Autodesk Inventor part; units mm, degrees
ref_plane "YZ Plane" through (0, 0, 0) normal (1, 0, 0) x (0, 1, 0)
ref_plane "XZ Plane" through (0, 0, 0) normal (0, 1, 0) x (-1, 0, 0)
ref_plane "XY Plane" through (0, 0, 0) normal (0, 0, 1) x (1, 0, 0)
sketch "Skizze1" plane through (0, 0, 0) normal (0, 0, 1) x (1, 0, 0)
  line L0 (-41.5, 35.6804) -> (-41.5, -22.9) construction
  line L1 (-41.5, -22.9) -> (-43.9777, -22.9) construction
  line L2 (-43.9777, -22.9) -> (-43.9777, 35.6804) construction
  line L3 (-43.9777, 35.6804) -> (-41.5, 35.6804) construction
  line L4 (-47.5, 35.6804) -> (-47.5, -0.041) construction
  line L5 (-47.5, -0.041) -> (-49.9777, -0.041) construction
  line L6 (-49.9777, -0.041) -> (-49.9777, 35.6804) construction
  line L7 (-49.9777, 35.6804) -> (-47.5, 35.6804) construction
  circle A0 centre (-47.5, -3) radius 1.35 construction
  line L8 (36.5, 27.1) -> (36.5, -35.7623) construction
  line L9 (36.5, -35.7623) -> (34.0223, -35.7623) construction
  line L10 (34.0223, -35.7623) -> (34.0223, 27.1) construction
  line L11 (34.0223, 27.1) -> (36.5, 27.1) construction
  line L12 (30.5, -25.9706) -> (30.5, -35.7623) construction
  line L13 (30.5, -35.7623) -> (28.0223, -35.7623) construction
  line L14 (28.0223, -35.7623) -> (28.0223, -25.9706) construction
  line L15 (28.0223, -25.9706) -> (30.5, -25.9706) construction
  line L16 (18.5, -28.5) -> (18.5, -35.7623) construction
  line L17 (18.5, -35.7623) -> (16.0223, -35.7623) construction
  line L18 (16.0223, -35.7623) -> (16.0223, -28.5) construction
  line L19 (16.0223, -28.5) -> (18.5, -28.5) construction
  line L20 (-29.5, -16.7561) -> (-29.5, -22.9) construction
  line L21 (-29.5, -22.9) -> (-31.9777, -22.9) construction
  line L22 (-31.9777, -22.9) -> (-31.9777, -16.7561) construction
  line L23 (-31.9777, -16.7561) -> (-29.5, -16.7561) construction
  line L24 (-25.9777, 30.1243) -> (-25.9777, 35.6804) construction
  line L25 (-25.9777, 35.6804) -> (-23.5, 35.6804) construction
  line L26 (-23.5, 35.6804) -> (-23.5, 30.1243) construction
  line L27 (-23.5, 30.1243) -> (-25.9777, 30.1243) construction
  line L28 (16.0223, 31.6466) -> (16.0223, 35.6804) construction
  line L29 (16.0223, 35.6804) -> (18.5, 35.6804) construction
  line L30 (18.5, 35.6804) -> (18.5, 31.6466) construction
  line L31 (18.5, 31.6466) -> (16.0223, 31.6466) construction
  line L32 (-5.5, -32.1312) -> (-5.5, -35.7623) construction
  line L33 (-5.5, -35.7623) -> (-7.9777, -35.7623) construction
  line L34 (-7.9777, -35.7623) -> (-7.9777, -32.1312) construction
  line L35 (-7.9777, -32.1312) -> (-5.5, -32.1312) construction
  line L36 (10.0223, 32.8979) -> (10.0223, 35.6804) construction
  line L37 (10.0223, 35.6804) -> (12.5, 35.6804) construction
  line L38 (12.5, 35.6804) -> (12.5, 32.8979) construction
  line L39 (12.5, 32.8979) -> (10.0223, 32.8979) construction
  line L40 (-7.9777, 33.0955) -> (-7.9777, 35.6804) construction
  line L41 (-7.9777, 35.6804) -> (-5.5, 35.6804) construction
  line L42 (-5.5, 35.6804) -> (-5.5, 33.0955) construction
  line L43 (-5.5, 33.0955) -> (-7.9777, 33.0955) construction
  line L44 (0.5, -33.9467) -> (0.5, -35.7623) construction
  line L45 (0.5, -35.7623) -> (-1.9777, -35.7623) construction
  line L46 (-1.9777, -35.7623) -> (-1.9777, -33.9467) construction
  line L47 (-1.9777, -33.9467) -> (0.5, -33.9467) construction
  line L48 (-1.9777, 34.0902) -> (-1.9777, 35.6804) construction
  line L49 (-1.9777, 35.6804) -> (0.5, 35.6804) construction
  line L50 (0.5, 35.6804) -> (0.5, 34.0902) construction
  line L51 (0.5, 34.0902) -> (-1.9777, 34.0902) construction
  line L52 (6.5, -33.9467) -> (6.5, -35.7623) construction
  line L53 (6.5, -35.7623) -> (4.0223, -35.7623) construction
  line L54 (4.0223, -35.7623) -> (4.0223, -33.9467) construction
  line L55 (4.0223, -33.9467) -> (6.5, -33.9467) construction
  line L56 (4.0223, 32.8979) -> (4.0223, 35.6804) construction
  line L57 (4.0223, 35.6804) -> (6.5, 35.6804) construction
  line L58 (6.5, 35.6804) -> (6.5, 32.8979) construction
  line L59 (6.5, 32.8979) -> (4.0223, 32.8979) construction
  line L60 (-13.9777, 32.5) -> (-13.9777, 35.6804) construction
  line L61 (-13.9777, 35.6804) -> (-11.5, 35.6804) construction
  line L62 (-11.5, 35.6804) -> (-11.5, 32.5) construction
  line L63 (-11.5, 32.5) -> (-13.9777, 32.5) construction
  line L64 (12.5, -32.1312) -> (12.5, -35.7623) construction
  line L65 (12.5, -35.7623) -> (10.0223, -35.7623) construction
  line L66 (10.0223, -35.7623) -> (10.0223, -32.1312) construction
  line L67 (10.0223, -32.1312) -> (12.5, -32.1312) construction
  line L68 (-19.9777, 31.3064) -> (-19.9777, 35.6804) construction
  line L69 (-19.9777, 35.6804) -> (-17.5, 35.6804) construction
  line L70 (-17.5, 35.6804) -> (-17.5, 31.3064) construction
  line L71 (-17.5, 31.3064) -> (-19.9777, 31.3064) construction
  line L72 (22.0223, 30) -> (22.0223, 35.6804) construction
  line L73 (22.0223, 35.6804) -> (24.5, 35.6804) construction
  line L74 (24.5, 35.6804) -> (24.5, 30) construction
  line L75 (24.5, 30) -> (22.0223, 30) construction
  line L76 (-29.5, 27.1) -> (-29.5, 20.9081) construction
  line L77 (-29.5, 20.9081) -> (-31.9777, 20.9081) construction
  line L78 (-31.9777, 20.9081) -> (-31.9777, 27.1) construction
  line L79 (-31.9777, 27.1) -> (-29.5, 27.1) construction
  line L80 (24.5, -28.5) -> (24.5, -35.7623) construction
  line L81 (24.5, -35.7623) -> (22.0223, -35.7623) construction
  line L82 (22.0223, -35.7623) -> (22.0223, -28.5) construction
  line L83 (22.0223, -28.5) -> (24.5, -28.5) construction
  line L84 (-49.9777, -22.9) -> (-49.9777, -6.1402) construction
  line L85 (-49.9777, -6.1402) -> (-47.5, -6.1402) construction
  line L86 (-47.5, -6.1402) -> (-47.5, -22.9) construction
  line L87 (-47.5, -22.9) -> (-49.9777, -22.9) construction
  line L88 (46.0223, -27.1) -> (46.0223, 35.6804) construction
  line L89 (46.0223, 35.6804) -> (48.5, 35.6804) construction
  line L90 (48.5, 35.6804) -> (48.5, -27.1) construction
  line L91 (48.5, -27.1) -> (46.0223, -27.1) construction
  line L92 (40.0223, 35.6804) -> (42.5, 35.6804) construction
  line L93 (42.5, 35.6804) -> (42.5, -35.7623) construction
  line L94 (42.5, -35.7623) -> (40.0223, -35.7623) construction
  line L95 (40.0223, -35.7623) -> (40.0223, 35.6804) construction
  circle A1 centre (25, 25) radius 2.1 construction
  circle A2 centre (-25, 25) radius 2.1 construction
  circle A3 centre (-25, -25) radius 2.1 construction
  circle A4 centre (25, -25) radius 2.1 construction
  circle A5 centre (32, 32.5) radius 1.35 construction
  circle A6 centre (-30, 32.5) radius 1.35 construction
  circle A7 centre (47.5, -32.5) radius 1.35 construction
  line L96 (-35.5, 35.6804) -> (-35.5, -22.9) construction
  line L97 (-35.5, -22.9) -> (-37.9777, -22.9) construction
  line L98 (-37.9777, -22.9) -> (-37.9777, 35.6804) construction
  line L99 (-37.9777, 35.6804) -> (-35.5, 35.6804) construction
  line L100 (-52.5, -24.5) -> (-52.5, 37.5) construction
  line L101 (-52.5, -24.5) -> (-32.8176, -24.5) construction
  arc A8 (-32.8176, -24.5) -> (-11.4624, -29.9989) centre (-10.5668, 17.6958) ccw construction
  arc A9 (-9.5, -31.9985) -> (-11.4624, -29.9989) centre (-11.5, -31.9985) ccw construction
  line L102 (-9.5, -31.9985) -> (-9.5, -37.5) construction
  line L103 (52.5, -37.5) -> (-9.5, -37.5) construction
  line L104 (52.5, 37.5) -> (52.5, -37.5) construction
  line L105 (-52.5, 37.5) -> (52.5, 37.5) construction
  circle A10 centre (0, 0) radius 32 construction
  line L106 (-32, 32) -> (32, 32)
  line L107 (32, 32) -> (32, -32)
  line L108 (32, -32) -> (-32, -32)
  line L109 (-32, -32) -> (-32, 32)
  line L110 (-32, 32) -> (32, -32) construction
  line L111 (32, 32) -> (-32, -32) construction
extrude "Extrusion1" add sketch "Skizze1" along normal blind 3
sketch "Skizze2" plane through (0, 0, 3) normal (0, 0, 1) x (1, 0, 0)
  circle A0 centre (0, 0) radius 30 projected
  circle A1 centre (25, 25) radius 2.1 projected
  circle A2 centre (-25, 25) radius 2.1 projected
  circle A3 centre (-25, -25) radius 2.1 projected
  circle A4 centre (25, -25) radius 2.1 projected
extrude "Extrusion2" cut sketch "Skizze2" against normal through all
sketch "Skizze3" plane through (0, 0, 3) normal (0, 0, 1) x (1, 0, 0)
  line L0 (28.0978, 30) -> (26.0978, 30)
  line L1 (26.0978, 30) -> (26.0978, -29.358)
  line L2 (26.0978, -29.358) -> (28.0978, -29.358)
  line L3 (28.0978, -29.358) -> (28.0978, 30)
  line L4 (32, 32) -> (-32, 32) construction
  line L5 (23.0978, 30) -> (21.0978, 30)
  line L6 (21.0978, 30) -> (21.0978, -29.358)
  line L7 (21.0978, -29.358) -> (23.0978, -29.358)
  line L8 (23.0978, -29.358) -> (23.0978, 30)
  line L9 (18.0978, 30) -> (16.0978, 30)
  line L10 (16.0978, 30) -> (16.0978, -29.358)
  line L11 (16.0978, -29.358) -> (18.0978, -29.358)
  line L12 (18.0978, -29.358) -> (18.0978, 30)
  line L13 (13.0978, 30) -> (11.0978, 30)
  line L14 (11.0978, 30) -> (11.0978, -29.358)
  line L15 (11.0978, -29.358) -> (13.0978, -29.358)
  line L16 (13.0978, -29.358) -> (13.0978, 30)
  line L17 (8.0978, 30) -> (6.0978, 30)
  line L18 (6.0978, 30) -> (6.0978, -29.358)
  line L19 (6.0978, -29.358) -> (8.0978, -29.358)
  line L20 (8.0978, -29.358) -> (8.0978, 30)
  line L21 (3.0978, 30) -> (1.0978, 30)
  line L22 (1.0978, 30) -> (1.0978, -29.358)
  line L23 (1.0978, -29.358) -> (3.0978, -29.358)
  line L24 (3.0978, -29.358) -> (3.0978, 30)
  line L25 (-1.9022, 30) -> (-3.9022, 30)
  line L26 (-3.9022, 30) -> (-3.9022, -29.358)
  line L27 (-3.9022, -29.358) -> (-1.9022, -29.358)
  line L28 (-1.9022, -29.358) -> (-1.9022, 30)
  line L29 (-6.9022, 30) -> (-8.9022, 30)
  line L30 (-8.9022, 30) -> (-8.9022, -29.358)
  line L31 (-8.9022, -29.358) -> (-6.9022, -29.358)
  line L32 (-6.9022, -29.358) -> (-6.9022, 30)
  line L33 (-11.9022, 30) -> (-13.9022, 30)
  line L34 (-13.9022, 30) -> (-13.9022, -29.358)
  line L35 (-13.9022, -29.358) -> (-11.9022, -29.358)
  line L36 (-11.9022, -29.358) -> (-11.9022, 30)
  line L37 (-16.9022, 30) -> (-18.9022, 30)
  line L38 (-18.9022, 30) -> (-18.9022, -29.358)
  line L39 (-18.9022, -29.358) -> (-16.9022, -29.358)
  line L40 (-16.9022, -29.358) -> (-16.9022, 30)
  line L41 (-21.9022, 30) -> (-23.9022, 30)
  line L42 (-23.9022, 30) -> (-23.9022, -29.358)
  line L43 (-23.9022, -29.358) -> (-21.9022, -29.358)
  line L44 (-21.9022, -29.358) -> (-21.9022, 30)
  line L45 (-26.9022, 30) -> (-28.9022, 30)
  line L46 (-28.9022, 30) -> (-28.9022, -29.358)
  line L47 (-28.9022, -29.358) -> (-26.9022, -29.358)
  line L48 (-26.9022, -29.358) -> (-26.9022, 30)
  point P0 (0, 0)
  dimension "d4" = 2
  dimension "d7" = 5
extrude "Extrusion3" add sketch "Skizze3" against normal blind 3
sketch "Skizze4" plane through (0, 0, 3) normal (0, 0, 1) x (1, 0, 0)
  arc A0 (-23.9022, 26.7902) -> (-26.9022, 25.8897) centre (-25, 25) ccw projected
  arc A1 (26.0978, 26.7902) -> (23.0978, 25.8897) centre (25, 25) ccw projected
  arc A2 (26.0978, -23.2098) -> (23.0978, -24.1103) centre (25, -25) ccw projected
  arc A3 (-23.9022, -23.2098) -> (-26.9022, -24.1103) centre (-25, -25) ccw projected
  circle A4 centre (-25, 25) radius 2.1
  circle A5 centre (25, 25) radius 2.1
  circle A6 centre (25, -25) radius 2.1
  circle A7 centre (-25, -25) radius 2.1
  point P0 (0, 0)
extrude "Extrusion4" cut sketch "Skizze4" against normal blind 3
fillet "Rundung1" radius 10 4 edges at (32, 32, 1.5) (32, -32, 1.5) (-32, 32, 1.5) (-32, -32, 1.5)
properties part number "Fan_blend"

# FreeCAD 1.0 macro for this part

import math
import FreeCAD as App
import Part
import Sketcher
Q = App.Units.Quantity


def edges_at(feature, points):
    """Names of the edges that pass closest to the given points."""
    edges = feature.Shape.Edges
    near = lambda p: min(range(len(edges)), key=lambda i: edges[i].distToShape(Part.Vertex(*p))[0])
    return sorted({f"Edge{near(p) + 1}" for p in points})


def add_polygon(sketch, points):
    """Adds a closed chain of lines whose ends are joined by coincident constraints."""
    first, n = sketch.GeometryCount, len(points)
    for a, b in zip(points, points[1:] + points[:1]):
        sketch.addGeometry(Part.LineSegment(App.Vector(*a, 0), App.Vector(*b, 0)), False)
    for i in range(n):
        sketch.addConstraint(Sketcher.Constraint("Coincident", first + i, 2, first + (i + 1) % n, 1))

doc = App.newDocument("Part")
body = doc.addObject("PartDesign::Body", "Body")

# Sketch on XY plane
sketch1 = body.newObject("Sketcher::SketchObject", "Sketch")
sketch1.AttachmentSupport = (doc.getObject("XY_Plane"), [""])
sketch1.MapMode = "FlatFace"
add_polygon(sketch1, [(32, 32), (-32, 32), (-32, -32), (32, -32)])  # lines 0-3
sketch1.addConstraint(Sketcher.Constraint("Horizontal", 0))
sketch1.addConstraint(Sketcher.Constraint("Vertical", 1))
sketch1.addConstraint(Sketcher.Constraint("Horizontal", 2))
sketch1.addConstraint(Sketcher.Constraint("Vertical", 3))
sketch1.addConstraint(Sketcher.Constraint("Symmetric", 0, 2, 2, 2, -1, 1))
sketch1.addConstraint(Sketcher.Constraint("Equal", 2, 1))
sketch1.addConstraint(Sketcher.Constraint("DistanceX", 0, 2, 0, 1, Q("64 mm")))
pad1 = body.newObject("PartDesign::Pad", "Pad")
pad1.Profile = sketch1
pad1.Length = 3

# Sketch on XY plane
sketch2 = body.newObject("Sketcher::SketchObject", "Sketch001")
sketch2.AttachmentSupport = (doc.getObject("XY_Plane"), [""])
sketch2.MapMode = "FlatFace"
sketch2.AttachmentOffset = App.Placement(App.Vector(0, 0, 3), App.Rotation())
sketch2.addGeometry(Part.Circle(App.Vector(0, 0, 0), App.Vector(0, 0, 1), 30), False)
sketch2.addGeometry(Part.Circle(App.Vector(25, 25, 0), App.Vector(0, 0, 1), 2.1), False)
sketch2.addGeometry(Part.Circle(App.Vector(-25, 25, 0), App.Vector(0, 0, 1), 2.1), False)
sketch2.addGeometry(Part.Circle(App.Vector(-25, -25, 0), App.Vector(0, 0, 1), 2.1), False)
sketch2.addGeometry(Part.Circle(App.Vector(25, -25, 0), App.Vector(0, 0, 1), 2.1), False)
sketch2.addConstraint(Sketcher.Constraint("Coincident", 0, 3, -1, 1))
sketch2.addConstraint(Sketcher.Constraint("Equal", 1, 2))
sketch2.addConstraint(Sketcher.Constraint("Equal", 2, 3))
sketch2.addConstraint(Sketcher.Constraint("Equal", 3, 4))
sketch2.addConstraint(Sketcher.Constraint("Symmetric", 1, 3, 3, 3, -1, 1))
sketch2.addConstraint(Sketcher.Constraint("Symmetric", 2, 3, 4, 3, -1, 1))
sketch2.addConstraint(Sketcher.Constraint("Symmetric", 1, 3, 2, 3, -2))
sketch2.addConstraint(Sketcher.Constraint("Diameter", 0, Q("60 mm")))
sketch2.addConstraint(Sketcher.Constraint("Diameter", 1, Q("4.2 mm")))
sketch2.addConstraint(Sketcher.Constraint("DistanceX", -1, 1, 1, 3, Q("25 mm")))
sketch2.addConstraint(Sketcher.Constraint("DistanceY", -1, 1, 1, 3, Q("25 mm")))
pocket1 = body.newObject("PartDesign::Pocket", "Pocket")
pocket1.Profile = sketch2
pocket1.Type = "ThroughAll"

# Sketch on XY plane
sketch3 = body.newObject("Sketcher::SketchObject", "Sketch002")
sketch3.AttachmentSupport = (doc.getObject("XY_Plane"), [""])
sketch3.MapMode = "FlatFace"
sketch3.AttachmentOffset = App.Placement(App.Vector(0, 0, 3), App.Rotation())
add_polygon(sketch3, [(28.1, -29.4), (28.1, 30), (26.1, 30), (26.1, -29.4)])  # lines 0-3
add_polygon(sketch3, [(23.1, -29.4), (23.1, 30), (21.1, 30), (21.1, -29.4)])  # lines 4-7
add_polygon(sketch3, [(18.1, -29.4), (18.1, 30), (16.1, 30), (16.1, -29.4)])  # lines 8-11
add_polygon(sketch3, [(13.1, -29.4), (13.1, 30), (11.1, 30), (11.1, -29.4)])  # lines 12-15
add_polygon(sketch3, [(8.1, -29.4), (8.1, 30), (6.1, 30), (6.1, -29.4)])  # lines 16-19
add_polygon(sketch3, [(3.1, -29.4), (3.1, 30), (1.1, 30), (1.1, -29.4)])  # lines 20-23
add_polygon(sketch3, [(-1.9, -29.4), (-1.9, 30), (-3.9, 30), (-3.9, -29.4)])  # lines 24-27
add_polygon(sketch3, [(-6.9, -29.4), (-6.9, 30), (-8.9, 30), (-8.9, -29.4)])  # lines 28-31
add_polygon(sketch3, [(-11.9, -29.4), (-11.9, 30), (-13.9, 30), (-13.9, -29.4)])  # lines 32-35
add_polygon(sketch3, [(-16.9, -29.4), (-16.9, 30), (-18.9, 30), (-18.9, -29.4)])  # lines 36-39
add_polygon(sketch3, [(-21.9, -29.4), (-21.9, 30), (-23.9, 30), (-23.9, -29.4)])  # lines 40-43
add_polygon(sketch3, [(-26.9, -29.4), (-26.9, 30), (-28.9, 30), (-28.9, -29.4)])  # lines 44-47
sketch3.addConstraint(Sketcher.Constraint("Vertical", 0))
sketch3.addConstraint(Sketcher.Constraint("Horizontal", 1))
sketch3.addConstraint(Sketcher.Constraint("Vertical", 2))
sketch3.addConstraint(Sketcher.Constraint("Horizontal", 3))
sketch3.addConstraint(Sketcher.Constraint("Vertical", 4))
sketch3.addConstraint(Sketcher.Constraint("Horizontal", 5))
sketch3.addConstraint(Sketcher.Constraint("Vertical", 6))
sketch3.addConstraint(Sketcher.Constraint("Horizontal", 7))
sketch3.addConstraint(Sketcher.Constraint("Vertical", 8))
sketch3.addConstraint(Sketcher.Constraint("Horizontal", 9))
sketch3.addConstraint(Sketcher.Constraint("Vertical", 10))
sketch3.addConstraint(Sketcher.Constraint("Horizontal", 11))
sketch3.addConstraint(Sketcher.Constraint("Vertical", 12))
sketch3.addConstraint(Sketcher.Constraint("Horizontal", 13))
sketch3.addConstraint(Sketcher.Constraint("Vertical", 14))
sketch3.addConstraint(Sketcher.Constraint("Horizontal", 15))
sketch3.addConstraint(Sketcher.Constraint("Vertical", 16))
sketch3.addConstraint(Sketcher.Constraint("Horizontal", 17))
sketch3.addConstraint(Sketcher.Constraint("Vertical", 18))
sketch3.addConstraint(Sketcher.Constraint("Horizontal", 19))
sketch3.addConstraint(Sketcher.Constraint("Vertical", 20))
sketch3.addConstraint(Sketcher.Constraint("Horizontal", 21))
sketch3.addConstraint(Sketcher.Constraint("Vertical", 22))
sketch3.addConstraint(Sketcher.Constraint("Horizontal", 23))
sketch3.addConstraint(Sketcher.Constraint("Vertical", 24))
sketch3.addConstraint(Sketcher.Constraint("Horizontal", 25))
sketch3.addConstraint(Sketcher.Constraint("Vertical", 26))
sketch3.addConstraint(Sketcher.Constraint("Horizontal", 27))
sketch3.addConstraint(Sketcher.Constraint("Vertical", 28))
sketch3.addConstraint(Sketcher.Constraint("Horizontal", 29))
sketch3.addConstraint(Sketcher.Constraint("Vertical", 30))
sketch3.addConstraint(Sketcher.Constraint("Horizontal", 31))
sketch3.addConstraint(Sketcher.Constraint("Vertical", 32))
sketch3.addConstraint(Sketcher.Constraint("Horizontal", 33))
sketch3.addConstraint(Sketcher.Constraint("Vertical", 34))
sketch3.addConstraint(Sketcher.Constraint("Horizontal", 35))
sketch3.addConstraint(Sketcher.Constraint("Vertical", 36))
sketch3.addConstraint(Sketcher.Constraint("Horizontal", 37))
sketch3.addConstraint(Sketcher.Constraint("Vertical", 38))
sketch3.addConstraint(Sketcher.Constraint("Horizontal", 39))
sketch3.addConstraint(Sketcher.Constraint("Vertical", 40))
sketch3.addConstraint(Sketcher.Constraint("Horizontal", 41))
sketch3.addConstraint(Sketcher.Constraint("Vertical", 42))
sketch3.addConstraint(Sketcher.Constraint("Horizontal", 43))
sketch3.addConstraint(Sketcher.Constraint("Vertical", 44))
sketch3.addConstraint(Sketcher.Constraint("Horizontal", 45))
sketch3.addConstraint(Sketcher.Constraint("Vertical", 46))
sketch3.addConstraint(Sketcher.Constraint("Horizontal", 47))
sketch3.addConstraint(Sketcher.Constraint("Horizontal", 1, 2, 4, 2))
sketch3.addConstraint(Sketcher.Constraint("Horizontal", 3, 2, 6, 2))
sketch3.addConstraint(Sketcher.Constraint("Horizontal", 5, 2, 8, 2))
sketch3.addConstraint(Sketcher.Constraint("Horizontal", 7, 2, 10, 2))
sketch3.addConstraint(Sketcher.Constraint("Horizontal", 9, 2, 12, 2))
sketch3.addConstraint(Sketcher.Constraint("Horizontal", 11, 2, 14, 2))
sketch3.addConstraint(Sketcher.Constraint("Horizontal", 13, 2, 16, 2))
sketch3.addConstraint(Sketcher.Constraint("Horizontal", 15, 2, 18, 2))
sketch3.addConstraint(Sketcher.Constraint("Horizontal", 17, 2, 20, 2))
sketch3.addConstraint(Sketcher.Constraint("Horizontal", 19, 2, 22, 2))
sketch3.addConstraint(Sketcher.Constraint("Horizontal", 21, 2, 24, 2))
sketch3.addConstraint(Sketcher.Constraint("Horizontal", 23, 2, 26, 2))
sketch3.addConstraint(Sketcher.Constraint("Horizontal", 25, 2, 28, 2))
sketch3.addConstraint(Sketcher.Constraint("Horizontal", 27, 2, 30, 2))
sketch3.addConstraint(Sketcher.Constraint("Horizontal", 29, 2, 32, 2))
sketch3.addConstraint(Sketcher.Constraint("Horizontal", 31, 2, 34, 2))
sketch3.addConstraint(Sketcher.Constraint("Horizontal", 33, 2, 36, 2))
sketch3.addConstraint(Sketcher.Constraint("Horizontal", 35, 2, 38, 2))
sketch3.addConstraint(Sketcher.Constraint("Horizontal", 37, 2, 40, 2))
sketch3.addConstraint(Sketcher.Constraint("Horizontal", 39, 2, 42, 2))
sketch3.addConstraint(Sketcher.Constraint("Horizontal", 41, 2, 44, 2))
sketch3.addConstraint(Sketcher.Constraint("Horizontal", 43, 2, 46, 2))
sketch3.addConstraint(Sketcher.Constraint("Equal", 3, 5))
sketch3.addConstraint(Sketcher.Constraint("Equal", 7, 9))
sketch3.addConstraint(Sketcher.Constraint("Equal", 11, 13))
sketch3.addConstraint(Sketcher.Constraint("Equal", 15, 17))
sketch3.addConstraint(Sketcher.Constraint("Equal", 19, 21))
sketch3.addConstraint(Sketcher.Constraint("Equal", 23, 25))
sketch3.addConstraint(Sketcher.Constraint("Equal", 27, 29))
sketch3.addConstraint(Sketcher.Constraint("Equal", 31, 33))
sketch3.addConstraint(Sketcher.Constraint("Equal", 35, 37))
sketch3.addConstraint(Sketcher.Constraint("Equal", 39, 41))
sketch3.addConstraint(Sketcher.Constraint("Equal", 43, 45))
sketch3.addConstraint(Sketcher.Constraint("DistanceX", 1, 2, 1, 1, Q("2 mm")))
sketch3.addConstraint(Sketcher.Constraint("DistanceX", 4, 2, 0, 2, Q("5 mm")))
sketch3.addConstraint(Sketcher.Constraint("DistanceX", 8, 2, 4, 2, Q("5 mm")))
sketch3.addConstraint(Sketcher.Constraint("DistanceX", 12, 2, 8, 2, Q("5 mm")))
sketch3.addConstraint(Sketcher.Constraint("DistanceX", 16, 2, 12, 2, Q("5 mm")))
sketch3.addConstraint(Sketcher.Constraint("DistanceX", 20, 2, 16, 2, Q("5 mm")))
sketch3.addConstraint(Sketcher.Constraint("DistanceX", 24, 2, 20, 2, Q("5 mm")))
sketch3.addConstraint(Sketcher.Constraint("DistanceX", 28, 2, 24, 2, Q("5 mm")))
sketch3.addConstraint(Sketcher.Constraint("DistanceX", 32, 2, 28, 2, Q("5 mm")))
sketch3.addConstraint(Sketcher.Constraint("DistanceX", 36, 2, 32, 2, Q("5 mm")))
sketch3.addConstraint(Sketcher.Constraint("DistanceX", 40, 2, 36, 2, Q("5 mm")))
sketch3.addConstraint(Sketcher.Constraint("DistanceX", 44, 2, 40, 2, Q("5 mm")))
sketch3.addConstraint(Sketcher.Constraint("DistanceY", -1, 1, 0, 2, Q("30 mm")))
sketch3.addConstraint(Sketcher.Constraint("DistanceY", 0, 1, 0, 2, Q("59.358 mm")))
sketch3.addConstraint(Sketcher.Constraint("DistanceX", -1, 1, 0, 2, Q("28.0978 mm")))
pad2 = body.newObject("PartDesign::Pad", "Pad001")
pad2.Profile = sketch3
pad2.Length = 3
pad2.Reversed = True

# Sketch on XY plane
sketch4 = body.newObject("Sketcher::SketchObject", "Sketch003")
sketch4.AttachmentSupport = (doc.getObject("XY_Plane"), [""])
sketch4.MapMode = "FlatFace"
sketch4.AttachmentOffset = App.Placement(App.Vector(0, 0, 3), App.Rotation())
sketch4.addGeometry(Part.ArcOfCircle(Part.Circle(App.Vector(-25, 25, 0), App.Vector(0, 0, 1), 2.1), math.radians(155), math.radians(418)), False)
sketch4.addGeometry(Part.ArcOfCircle(Part.Circle(App.Vector(-25, 25, 0), App.Vector(0, 0, 1), 2.1), math.radians(58), math.radians(155)), False)
sketch4.addGeometry(Part.ArcOfCircle(Part.Circle(App.Vector(25, 25, 0), App.Vector(0, 0, 1), 2.1), math.radians(155), math.radians(418)), False)
sketch4.addGeometry(Part.ArcOfCircle(Part.Circle(App.Vector(25, 25, 0), App.Vector(0, 0, 1), 2.1), math.radians(58), math.radians(155)), False)
sketch4.addGeometry(Part.ArcOfCircle(Part.Circle(App.Vector(25, -25, 0), App.Vector(0, 0, 1), 2.1), math.radians(155), math.radians(418)), False)
sketch4.addGeometry(Part.ArcOfCircle(Part.Circle(App.Vector(25, -25, 0), App.Vector(0, 0, 1), 2.1), math.radians(58), math.radians(155)), False)
sketch4.addGeometry(Part.ArcOfCircle(Part.Circle(App.Vector(-25, -25, 0), App.Vector(0, 0, 1), 2.1), math.radians(155), math.radians(418)), False)
sketch4.addGeometry(Part.ArcOfCircle(Part.Circle(App.Vector(-25, -25, 0), App.Vector(0, 0, 1), 2.1), math.radians(58), math.radians(155)), False)
sketch4.addConstraint(Sketcher.Constraint("Tangent", 0, 1, 1, 2))
sketch4.addConstraint(Sketcher.Constraint("Coincident", 1, 1, 0, 2))
sketch4.addConstraint(Sketcher.Constraint("Tangent", 2, 1, 3, 2))
sketch4.addConstraint(Sketcher.Constraint("Coincident", 3, 1, 2, 2))
sketch4.addConstraint(Sketcher.Constraint("Tangent", 4, 1, 5, 2))
sketch4.addConstraint(Sketcher.Constraint("Coincident", 5, 1, 4, 2))
sketch4.addConstraint(Sketcher.Constraint("Tangent", 6, 1, 7, 2))
sketch4.addConstraint(Sketcher.Constraint("Coincident", 7, 1, 6, 2))
sketch4.addConstraint(Sketcher.Constraint("Equal", 1, 2))
sketch4.addConstraint(Sketcher.Constraint("Equal", 3, 4))
sketch4.addConstraint(Sketcher.Constraint("Equal", 5, 6))
sketch4.addConstraint(Sketcher.Constraint("Symmetric", 0, 3, 4, 3, -1, 1))
sketch4.addConstraint(Sketcher.Constraint("Symmetric", 2, 3, 6, 3, -1, 1))
sketch4.addConstraint(Sketcher.Constraint("Symmetric", 0, 3, 2, 3, -2))
sketch4.addConstraint(Sketcher.Constraint("Horizontal", 0, 1, 2, 1))
sketch4.addConstraint(Sketcher.Constraint("Horizontal", 1, 1, 3, 1))
sketch4.addConstraint(Sketcher.Constraint("Horizontal", 4, 1, 6, 1))
sketch4.addConstraint(Sketcher.Constraint("Horizontal", 5, 1, 7, 1))
sketch4.addConstraint(Sketcher.Constraint("Vertical", 2, 1, 4, 1))
sketch4.addConstraint(Sketcher.Constraint("Vertical", 3, 1, 5, 1))
sketch4.addConstraint(Sketcher.Constraint("Radius", 0, Q("2.1 mm")))
sketch4.addConstraint(Sketcher.Constraint("DistanceX", 0, 3, -1, 1, Q("25 mm")))
sketch4.addConstraint(Sketcher.Constraint("DistanceY", -1, 1, 0, 3, Q("25 mm")))
sketch4.addConstraint(Sketcher.Constraint("DistanceX", 0, 1, 1, 1, Q("3 mm")))
sketch4.addConstraint(Sketcher.Constraint("DistanceX", 0, 1, -1, 1, Q("26.9022 mm")))
pocket2 = body.newObject("PartDesign::Pocket", "Pocket001")
pocket2.Profile = sketch4
pocket2.Length = 3
doc.recompute()

fillet = body.newObject("PartDesign::Fillet", "Fillet")
fillet.Base = (pocket2, edges_at(pocket2, [
    (32, 32, 1.5),
    (32, -32, 1.5),
    (-32, 32, 1.5),
    (-32, -32, 1.5),
]))
fillet.Radius = 10

doc.recompute()
